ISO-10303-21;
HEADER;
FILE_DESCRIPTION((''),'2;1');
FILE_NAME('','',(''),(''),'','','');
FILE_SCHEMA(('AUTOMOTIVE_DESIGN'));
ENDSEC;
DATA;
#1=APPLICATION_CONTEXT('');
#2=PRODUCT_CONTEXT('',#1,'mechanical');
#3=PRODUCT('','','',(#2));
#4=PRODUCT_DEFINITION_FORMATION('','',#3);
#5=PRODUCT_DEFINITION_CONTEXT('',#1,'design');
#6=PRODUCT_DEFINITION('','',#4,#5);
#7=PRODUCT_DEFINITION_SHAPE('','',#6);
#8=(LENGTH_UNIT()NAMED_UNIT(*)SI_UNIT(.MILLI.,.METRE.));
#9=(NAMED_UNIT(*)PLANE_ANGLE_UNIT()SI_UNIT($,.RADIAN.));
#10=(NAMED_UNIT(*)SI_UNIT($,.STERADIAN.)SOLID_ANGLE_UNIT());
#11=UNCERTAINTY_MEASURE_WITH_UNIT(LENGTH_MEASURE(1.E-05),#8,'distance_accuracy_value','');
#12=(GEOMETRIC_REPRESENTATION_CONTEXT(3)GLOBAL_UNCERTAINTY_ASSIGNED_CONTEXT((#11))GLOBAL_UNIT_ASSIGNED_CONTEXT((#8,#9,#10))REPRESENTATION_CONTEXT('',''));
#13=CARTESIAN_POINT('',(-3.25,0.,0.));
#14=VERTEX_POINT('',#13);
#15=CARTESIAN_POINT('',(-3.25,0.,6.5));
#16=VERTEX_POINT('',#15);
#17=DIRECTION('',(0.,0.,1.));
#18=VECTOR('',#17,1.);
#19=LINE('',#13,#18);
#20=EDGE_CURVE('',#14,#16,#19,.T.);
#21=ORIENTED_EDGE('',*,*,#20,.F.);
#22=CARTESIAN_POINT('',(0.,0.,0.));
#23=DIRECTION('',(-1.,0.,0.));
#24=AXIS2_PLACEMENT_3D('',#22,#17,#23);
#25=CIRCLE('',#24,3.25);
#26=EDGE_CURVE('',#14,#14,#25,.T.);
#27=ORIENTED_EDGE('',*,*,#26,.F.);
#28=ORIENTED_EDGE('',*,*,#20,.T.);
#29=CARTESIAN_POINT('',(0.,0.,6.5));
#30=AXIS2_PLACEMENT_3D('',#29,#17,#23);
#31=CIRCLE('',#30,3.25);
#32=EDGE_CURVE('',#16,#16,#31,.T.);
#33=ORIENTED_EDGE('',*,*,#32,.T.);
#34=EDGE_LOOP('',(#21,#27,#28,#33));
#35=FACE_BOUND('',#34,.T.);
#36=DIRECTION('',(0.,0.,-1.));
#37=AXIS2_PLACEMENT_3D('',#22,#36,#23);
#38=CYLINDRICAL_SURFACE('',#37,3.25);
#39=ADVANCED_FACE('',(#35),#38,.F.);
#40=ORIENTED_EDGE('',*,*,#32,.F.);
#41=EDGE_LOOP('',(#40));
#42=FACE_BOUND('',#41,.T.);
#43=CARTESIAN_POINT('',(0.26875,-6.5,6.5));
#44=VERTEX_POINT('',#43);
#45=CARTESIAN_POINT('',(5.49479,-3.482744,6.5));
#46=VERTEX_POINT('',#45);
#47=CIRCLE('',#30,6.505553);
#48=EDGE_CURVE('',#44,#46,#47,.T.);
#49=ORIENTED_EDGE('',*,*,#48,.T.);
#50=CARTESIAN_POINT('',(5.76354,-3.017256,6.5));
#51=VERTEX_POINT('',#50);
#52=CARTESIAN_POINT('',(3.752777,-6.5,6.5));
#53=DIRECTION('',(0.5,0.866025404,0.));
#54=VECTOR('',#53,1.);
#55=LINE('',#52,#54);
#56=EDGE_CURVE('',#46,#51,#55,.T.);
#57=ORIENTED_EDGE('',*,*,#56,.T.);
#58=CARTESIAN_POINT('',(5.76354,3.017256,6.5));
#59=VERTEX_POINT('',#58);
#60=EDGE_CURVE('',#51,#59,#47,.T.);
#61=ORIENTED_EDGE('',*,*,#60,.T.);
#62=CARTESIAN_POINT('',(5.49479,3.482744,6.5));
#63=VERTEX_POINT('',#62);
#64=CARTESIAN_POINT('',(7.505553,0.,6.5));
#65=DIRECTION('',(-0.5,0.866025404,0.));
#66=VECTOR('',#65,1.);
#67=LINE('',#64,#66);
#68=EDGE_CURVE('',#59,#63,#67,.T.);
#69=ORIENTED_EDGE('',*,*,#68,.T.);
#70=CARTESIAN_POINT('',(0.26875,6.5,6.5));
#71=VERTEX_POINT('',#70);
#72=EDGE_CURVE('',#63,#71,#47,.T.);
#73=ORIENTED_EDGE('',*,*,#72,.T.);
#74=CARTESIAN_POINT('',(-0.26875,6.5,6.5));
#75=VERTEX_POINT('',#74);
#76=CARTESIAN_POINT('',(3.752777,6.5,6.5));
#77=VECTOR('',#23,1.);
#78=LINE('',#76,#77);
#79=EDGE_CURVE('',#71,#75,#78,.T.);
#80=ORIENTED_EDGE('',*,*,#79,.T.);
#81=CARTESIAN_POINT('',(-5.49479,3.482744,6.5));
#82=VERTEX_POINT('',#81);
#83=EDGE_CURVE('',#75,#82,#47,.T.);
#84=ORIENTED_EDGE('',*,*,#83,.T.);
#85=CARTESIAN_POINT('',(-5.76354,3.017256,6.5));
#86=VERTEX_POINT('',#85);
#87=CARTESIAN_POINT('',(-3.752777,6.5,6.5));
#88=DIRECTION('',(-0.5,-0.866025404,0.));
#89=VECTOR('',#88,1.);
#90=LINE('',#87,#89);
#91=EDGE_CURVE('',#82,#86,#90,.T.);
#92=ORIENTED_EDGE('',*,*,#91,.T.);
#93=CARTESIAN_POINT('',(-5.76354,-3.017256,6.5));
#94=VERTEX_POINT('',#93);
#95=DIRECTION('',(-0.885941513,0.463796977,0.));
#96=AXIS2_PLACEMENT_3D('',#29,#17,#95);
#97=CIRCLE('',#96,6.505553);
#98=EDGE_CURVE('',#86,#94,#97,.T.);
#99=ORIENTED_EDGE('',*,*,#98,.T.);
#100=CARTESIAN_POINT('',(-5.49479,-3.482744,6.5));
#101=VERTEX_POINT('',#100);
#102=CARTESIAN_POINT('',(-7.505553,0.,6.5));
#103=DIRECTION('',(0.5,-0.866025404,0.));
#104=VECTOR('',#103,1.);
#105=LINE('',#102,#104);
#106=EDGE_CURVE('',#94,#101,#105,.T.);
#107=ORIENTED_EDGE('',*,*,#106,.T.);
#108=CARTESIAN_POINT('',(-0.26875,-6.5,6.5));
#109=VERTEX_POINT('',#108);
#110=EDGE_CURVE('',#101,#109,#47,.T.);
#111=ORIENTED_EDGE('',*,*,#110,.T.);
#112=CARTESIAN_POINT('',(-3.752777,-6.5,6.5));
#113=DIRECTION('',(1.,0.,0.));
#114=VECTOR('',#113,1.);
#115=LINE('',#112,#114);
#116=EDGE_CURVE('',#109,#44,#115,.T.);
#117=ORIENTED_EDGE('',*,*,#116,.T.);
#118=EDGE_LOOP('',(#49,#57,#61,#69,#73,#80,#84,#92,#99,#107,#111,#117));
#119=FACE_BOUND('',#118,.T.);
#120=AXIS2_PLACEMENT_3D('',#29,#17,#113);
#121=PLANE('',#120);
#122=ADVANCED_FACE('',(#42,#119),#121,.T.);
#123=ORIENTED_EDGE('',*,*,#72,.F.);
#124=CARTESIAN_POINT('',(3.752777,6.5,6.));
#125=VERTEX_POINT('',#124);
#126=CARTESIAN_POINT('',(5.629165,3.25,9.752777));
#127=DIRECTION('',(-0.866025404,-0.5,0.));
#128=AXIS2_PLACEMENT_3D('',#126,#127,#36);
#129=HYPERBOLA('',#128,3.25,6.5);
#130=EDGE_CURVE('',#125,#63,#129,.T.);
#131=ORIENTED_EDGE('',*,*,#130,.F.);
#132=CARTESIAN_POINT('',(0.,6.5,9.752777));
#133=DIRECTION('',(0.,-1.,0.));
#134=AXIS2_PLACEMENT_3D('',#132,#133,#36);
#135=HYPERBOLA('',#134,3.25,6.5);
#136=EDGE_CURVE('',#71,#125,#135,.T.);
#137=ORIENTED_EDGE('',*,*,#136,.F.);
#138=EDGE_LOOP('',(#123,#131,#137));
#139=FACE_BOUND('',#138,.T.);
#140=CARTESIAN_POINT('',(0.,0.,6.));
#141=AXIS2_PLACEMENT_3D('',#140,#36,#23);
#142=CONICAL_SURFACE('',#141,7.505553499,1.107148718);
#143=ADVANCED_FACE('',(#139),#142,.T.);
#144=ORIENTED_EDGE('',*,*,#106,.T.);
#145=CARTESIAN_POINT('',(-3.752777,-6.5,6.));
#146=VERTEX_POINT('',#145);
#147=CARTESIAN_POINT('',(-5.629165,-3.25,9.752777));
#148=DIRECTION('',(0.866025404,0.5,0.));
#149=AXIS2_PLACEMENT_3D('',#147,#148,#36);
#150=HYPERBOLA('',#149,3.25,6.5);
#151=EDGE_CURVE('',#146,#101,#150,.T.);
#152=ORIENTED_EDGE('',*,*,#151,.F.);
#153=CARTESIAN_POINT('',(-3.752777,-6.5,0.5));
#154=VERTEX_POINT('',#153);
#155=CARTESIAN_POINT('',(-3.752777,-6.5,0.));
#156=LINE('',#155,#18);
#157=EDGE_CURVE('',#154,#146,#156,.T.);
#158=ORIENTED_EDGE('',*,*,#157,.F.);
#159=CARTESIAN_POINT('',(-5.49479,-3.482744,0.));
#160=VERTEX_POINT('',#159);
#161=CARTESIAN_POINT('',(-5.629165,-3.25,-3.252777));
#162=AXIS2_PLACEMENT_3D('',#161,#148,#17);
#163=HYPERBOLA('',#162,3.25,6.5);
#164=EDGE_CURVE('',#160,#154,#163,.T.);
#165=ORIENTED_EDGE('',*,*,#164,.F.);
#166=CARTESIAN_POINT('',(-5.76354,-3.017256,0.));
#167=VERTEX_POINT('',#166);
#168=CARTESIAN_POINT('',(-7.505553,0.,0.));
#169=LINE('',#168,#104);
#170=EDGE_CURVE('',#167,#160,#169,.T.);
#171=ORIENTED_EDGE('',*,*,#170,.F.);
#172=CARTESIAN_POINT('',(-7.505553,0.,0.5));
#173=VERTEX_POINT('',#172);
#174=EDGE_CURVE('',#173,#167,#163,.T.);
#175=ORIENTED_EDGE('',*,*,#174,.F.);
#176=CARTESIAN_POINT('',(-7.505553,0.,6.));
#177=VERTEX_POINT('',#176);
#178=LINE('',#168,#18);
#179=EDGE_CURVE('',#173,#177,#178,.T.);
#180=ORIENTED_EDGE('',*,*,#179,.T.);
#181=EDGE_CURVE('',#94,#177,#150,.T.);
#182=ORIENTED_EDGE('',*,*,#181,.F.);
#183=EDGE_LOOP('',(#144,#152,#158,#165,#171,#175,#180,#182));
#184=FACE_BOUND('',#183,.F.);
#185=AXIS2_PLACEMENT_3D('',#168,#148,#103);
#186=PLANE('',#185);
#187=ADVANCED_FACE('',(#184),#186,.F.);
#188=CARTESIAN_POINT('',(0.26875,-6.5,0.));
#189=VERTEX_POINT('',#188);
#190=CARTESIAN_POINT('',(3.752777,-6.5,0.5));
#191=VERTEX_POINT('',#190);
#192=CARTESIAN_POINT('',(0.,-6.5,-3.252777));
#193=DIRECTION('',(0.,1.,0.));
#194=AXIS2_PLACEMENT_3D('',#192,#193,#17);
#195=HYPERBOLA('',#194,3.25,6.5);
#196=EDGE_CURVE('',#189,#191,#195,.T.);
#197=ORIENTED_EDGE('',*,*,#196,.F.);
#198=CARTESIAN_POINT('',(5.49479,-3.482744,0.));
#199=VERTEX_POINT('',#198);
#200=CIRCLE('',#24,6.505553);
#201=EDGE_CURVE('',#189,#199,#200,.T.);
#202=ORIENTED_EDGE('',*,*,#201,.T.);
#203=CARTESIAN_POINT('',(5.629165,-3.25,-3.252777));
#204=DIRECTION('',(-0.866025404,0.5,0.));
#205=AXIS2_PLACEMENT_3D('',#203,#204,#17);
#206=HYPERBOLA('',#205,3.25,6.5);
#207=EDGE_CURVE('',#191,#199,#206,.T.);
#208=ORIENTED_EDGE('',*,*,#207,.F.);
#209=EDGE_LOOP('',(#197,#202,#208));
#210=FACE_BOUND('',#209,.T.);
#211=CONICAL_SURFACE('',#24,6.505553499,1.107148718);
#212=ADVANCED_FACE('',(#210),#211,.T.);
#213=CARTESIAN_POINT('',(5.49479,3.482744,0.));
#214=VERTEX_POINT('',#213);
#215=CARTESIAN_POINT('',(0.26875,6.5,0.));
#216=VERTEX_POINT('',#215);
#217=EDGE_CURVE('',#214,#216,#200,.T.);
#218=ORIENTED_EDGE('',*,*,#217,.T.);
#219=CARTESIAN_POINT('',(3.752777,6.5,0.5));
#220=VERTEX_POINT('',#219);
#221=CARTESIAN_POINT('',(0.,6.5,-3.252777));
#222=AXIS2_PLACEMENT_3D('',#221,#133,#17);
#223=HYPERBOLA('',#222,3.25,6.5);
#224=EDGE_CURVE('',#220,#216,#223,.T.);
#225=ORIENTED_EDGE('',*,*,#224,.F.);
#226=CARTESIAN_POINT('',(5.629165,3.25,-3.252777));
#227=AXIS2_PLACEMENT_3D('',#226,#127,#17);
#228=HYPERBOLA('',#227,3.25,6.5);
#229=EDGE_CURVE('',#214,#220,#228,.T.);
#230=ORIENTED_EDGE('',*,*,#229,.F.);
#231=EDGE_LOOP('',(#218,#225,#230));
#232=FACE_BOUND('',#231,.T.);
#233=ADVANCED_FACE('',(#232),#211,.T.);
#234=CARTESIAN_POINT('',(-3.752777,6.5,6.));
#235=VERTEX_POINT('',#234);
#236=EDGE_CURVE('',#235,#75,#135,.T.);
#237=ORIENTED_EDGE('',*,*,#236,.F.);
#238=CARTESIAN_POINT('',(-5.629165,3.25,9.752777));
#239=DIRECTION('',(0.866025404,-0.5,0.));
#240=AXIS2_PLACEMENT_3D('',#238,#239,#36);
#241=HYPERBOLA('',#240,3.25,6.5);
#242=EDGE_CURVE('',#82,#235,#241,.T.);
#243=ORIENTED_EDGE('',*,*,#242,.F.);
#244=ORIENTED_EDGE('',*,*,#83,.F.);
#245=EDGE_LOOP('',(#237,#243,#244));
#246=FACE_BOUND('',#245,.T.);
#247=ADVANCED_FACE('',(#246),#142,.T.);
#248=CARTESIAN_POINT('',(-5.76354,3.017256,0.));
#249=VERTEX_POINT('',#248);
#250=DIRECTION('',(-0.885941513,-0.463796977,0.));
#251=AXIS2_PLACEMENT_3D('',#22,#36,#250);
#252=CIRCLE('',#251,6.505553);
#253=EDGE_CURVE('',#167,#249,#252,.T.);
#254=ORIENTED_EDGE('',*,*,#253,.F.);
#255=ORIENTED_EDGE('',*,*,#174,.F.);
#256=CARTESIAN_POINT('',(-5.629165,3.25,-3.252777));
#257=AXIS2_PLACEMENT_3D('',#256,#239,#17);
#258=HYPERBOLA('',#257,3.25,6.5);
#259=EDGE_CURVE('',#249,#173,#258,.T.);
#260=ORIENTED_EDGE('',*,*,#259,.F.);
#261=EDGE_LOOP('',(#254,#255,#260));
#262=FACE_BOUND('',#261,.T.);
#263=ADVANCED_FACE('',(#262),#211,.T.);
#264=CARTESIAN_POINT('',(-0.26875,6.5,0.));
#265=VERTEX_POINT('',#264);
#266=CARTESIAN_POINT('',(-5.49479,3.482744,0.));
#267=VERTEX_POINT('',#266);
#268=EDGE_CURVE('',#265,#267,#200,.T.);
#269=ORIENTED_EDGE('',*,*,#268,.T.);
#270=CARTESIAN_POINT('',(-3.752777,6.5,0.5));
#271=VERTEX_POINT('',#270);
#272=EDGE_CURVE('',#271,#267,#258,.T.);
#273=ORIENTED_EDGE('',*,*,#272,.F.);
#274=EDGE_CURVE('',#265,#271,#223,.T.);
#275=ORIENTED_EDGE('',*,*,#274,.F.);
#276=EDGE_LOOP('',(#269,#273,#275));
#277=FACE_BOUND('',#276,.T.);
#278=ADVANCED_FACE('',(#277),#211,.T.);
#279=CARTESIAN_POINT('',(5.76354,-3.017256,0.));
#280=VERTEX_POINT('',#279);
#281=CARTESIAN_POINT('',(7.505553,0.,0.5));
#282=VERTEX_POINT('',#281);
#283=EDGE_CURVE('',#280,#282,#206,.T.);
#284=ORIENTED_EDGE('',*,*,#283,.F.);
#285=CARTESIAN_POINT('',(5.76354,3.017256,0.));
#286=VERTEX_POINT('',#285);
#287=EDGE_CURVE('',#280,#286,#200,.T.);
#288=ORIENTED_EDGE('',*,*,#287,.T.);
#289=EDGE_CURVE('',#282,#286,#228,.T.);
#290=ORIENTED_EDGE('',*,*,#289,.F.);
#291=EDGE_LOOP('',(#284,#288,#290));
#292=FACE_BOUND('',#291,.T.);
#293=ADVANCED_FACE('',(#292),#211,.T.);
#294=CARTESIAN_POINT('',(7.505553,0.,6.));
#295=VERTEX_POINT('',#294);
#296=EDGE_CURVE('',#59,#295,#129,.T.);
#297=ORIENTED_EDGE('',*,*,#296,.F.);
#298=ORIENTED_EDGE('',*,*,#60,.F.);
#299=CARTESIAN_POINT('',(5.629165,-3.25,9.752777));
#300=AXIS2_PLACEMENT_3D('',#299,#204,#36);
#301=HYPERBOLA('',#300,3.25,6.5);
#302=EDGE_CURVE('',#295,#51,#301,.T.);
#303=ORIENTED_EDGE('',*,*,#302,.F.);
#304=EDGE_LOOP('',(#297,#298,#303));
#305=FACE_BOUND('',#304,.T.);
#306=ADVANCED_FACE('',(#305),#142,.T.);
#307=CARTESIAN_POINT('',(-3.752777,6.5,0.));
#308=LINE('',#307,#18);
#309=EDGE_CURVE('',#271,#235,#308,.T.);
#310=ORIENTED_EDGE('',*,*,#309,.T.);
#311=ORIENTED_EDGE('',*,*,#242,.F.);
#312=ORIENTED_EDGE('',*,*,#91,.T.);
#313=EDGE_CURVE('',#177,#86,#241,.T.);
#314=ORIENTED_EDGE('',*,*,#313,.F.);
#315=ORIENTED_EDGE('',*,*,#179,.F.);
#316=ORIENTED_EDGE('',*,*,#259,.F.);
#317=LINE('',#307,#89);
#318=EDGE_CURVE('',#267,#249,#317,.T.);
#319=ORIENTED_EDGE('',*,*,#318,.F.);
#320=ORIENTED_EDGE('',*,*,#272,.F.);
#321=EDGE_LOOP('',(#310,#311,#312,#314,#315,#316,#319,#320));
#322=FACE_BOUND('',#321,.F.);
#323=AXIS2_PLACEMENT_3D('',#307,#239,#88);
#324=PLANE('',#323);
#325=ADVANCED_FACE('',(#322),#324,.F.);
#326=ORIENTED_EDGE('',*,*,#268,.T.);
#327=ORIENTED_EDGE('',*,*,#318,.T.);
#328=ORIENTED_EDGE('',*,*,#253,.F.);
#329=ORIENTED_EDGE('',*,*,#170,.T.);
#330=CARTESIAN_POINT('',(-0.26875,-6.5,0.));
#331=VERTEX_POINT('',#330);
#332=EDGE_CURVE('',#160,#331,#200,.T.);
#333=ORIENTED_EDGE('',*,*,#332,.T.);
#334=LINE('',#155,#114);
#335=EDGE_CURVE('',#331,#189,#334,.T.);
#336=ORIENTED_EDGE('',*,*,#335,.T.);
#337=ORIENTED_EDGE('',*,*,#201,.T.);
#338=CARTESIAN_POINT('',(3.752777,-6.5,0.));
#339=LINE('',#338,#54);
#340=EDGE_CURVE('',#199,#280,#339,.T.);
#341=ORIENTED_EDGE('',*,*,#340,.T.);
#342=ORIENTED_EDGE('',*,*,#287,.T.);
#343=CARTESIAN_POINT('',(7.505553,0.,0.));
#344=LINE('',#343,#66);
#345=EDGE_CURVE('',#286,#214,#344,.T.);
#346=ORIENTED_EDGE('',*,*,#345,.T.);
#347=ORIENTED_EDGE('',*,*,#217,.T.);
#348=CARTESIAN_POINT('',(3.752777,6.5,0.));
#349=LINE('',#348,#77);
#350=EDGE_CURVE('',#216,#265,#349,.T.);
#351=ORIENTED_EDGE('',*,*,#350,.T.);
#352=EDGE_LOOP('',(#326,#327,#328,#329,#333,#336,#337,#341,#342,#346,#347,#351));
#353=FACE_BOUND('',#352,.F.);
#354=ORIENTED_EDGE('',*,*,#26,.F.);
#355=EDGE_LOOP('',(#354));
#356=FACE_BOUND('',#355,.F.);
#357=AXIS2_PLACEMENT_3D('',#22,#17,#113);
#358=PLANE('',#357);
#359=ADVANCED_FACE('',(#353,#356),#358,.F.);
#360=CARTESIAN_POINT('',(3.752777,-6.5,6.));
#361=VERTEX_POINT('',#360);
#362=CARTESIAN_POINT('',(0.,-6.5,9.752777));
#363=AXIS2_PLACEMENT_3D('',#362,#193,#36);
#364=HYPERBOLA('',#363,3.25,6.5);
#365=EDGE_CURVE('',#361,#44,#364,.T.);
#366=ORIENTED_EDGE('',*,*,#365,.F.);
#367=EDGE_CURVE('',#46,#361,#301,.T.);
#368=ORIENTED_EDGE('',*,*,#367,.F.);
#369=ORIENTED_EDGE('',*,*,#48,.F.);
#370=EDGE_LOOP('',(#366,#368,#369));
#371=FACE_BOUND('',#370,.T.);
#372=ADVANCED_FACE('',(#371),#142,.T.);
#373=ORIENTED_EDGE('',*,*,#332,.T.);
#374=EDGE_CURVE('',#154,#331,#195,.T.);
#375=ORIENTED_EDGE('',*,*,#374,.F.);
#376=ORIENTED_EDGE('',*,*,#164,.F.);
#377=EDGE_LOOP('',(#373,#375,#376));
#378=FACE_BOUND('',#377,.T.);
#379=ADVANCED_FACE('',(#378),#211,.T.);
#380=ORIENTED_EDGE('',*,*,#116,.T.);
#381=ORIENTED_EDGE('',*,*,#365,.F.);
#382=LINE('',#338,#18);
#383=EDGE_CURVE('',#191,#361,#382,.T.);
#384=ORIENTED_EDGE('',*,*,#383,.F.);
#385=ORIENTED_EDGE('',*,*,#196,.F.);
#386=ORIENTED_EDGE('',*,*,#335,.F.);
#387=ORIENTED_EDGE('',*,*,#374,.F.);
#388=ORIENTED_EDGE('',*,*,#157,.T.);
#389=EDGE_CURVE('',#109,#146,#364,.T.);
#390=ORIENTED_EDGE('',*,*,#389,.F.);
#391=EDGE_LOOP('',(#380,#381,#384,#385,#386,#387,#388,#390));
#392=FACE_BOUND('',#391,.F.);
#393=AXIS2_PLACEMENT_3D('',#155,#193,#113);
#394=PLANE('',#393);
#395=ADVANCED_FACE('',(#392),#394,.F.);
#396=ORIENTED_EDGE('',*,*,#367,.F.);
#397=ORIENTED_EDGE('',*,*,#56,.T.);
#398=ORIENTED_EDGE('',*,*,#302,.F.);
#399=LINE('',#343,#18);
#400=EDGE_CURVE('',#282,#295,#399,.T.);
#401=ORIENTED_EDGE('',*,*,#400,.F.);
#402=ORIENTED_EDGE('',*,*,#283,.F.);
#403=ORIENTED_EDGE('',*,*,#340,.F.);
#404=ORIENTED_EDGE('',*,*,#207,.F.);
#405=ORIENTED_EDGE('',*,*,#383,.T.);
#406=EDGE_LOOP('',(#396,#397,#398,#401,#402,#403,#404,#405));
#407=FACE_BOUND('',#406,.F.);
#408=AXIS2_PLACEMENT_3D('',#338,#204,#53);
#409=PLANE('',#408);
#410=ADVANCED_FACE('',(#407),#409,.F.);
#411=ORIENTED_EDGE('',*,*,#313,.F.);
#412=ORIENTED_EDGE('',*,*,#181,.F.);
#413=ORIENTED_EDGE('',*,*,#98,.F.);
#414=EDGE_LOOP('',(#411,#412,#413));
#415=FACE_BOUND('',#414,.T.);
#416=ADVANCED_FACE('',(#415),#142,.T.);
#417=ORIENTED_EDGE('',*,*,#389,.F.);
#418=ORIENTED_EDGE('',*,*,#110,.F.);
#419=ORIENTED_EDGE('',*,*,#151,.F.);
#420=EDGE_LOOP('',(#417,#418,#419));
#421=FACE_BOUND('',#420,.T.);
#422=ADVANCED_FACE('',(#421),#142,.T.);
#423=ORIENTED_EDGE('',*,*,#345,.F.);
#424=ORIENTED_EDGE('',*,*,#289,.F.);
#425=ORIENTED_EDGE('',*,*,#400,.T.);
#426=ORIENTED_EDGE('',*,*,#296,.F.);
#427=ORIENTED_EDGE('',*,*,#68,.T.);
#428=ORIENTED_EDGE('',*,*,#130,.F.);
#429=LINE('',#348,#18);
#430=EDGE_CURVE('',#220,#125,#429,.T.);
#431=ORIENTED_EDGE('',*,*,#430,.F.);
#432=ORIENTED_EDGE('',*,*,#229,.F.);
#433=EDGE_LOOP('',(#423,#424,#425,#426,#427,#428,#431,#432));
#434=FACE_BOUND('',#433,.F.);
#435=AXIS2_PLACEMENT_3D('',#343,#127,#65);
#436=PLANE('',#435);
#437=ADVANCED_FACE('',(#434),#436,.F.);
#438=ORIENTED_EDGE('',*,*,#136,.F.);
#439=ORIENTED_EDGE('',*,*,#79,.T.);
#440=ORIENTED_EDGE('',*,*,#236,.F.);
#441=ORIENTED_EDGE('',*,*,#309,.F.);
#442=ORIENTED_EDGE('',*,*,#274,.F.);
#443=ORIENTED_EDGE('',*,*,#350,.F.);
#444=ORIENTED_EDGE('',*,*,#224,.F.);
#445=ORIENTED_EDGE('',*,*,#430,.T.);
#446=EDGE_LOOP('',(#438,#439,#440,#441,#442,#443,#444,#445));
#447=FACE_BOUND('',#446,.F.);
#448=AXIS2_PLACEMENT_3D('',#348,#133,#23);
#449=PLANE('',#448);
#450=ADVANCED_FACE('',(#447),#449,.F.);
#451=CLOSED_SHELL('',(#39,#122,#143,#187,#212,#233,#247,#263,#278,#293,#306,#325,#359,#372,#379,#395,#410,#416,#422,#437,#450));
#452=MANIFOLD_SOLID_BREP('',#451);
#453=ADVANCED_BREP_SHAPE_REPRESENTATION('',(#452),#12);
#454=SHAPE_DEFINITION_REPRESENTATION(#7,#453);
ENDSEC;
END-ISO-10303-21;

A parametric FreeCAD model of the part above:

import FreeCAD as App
import Part
import Sketcher
Q = App.Units.Quantity

doc = App.newDocument("Part")
params = doc.addObject("Spreadsheet::Sheet", "Params")
for row, (alias, value) in enumerate([
    ("sketch1_diameter", "6.5 mm"),
    ("pad1_length", "6.5 mm"),
    ("sketch2_width", "1 mm"),
    ("sketch2_height", "0.5 mm"),
    ("groove_angle", "360 deg"),
], start=1):
    params.set(f"A{row}", alias)
    params.set(f"B{row}", "=" + value)
    params.setAlias(f"B{row}", alias)

body = doc.addObject("PartDesign::Body", "Body")

# Sketch on XY plane
sketch1 = body.newObject("Sketcher::SketchObject", "Sketch")
sketch1.AttachmentSupport = (doc.getObject("XY_Plane"), [""])
sketch1.MapMode = "FlatFace"
sketch1.addGeometry([
    Part.LineSegment(App.Vector(7.5, 0, 0), App.Vector(3.8, 6.5, 0)),  # 0
    Part.LineSegment(App.Vector(3.8, 6.5, 0), App.Vector(-3.8, 6.5, 0)),  # 1
    Part.LineSegment(App.Vector(-3.8, 6.5, 0), App.Vector(-7.5, 0, 0)),  # 2
    Part.LineSegment(App.Vector(-7.5, 0, 0), App.Vector(-3.8, -6.5, 0)),  # 3
    Part.LineSegment(App.Vector(-3.8, -6.5, 0), App.Vector(3.8, -6.5, 0)),  # 4
    Part.LineSegment(App.Vector(3.8, -6.5, 0), App.Vector(7.5, 0, 0)),  # 5
    Part.Circle(App.Vector(0, 0, 0), App.Vector(0, 0, 1), 3.2),  # 6
], False)
sketch1.addConstraint([
    Sketcher.Constraint("Coincident", 0, 2, 1, 1),
    Sketcher.Constraint("Coincident", 1, 2, 2, 1),
    Sketcher.Constraint("Coincident", 2, 2, 3, 1),
    Sketcher.Constraint("Coincident", 3, 2, 4, 1),
    Sketcher.Constraint("Coincident", 4, 2, 5, 1),
    Sketcher.Constraint("Coincident", 5, 2, 0, 1),
    Sketcher.Constraint("Horizontal", 1),
    Sketcher.Constraint("Horizontal", 4),
    Sketcher.Constraint("Coincident", 6, 3, -1, 1),
    Sketcher.Constraint("Symmetric", 0, 2, 3, 2, -1, 1),
    Sketcher.Constraint("Symmetric", 2, 2, 5, 2, -1, 1),
    Sketcher.Constraint("PointOnObject", 2, 2, -1),
    Sketcher.Constraint("Parallel", 2, 5),
    Sketcher.Constraint("Vertical", 1, 2, 3, 2),
    Sketcher.Constraint("Diameter", 6, Q("6.5 mm")),
    Sketcher.Constraint("Angle", 0, Q("120 deg")),
    Sketcher.Constraint("DistanceY", 3, 2, 1, 2, Q("13 mm")),
    Sketcher.Constraint("DistanceX", 1, 2, 1, 1, Q("7.505554 mm")),
])
sketch1.setExpression("Constraints[14]", "Params.sketch1_diameter")
pad1 = body.newObject("PartDesign::Pad", "Pad")
pad1.Profile = sketch1
pad1.setExpression("Length", "Params.pad1_length")

# Sketch on XZ plane
sketch2 = body.newObject("Sketcher::SketchObject", "Sketch001")
sketch2.AttachmentSupport = (doc.getObject("XZ_Plane"), [""])
sketch2.MapMode = "FlatFace"
sketch2.addGeometry([
    Part.LineSegment(App.Vector(-6.5, 0, 0), App.Vector(-7.5, 0, 0)),  # 0
    Part.LineSegment(App.Vector(-7.5, 0, 0), App.Vector(-7.5, 0.5, 0)),  # 1
    Part.LineSegment(App.Vector(-7.5, 0.5, 0), App.Vector(-6.5, 0, 0)),  # 2
    Part.LineSegment(App.Vector(-7.5, 6, 0), App.Vector(-7.5, 6.5, 0)),  # 3
    Part.LineSegment(App.Vector(-7.5, 6.5, 0), App.Vector(-6.5, 6.5, 0)),  # 4
    Part.LineSegment(App.Vector(-6.5, 6.5, 0), App.Vector(-7.5, 6, 0)),  # 5
], False)
sketch2.addConstraint([
    Sketcher.Constraint("Coincident", 0, 2, 1, 1),
    Sketcher.Constraint("Coincident", 1, 2, 2, 1),
    Sketcher.Constraint("Coincident", 2, 2, 0, 1),
    Sketcher.Constraint("Coincident", 3, 2, 4, 1),
    Sketcher.Constraint("Coincident", 4, 2, 5, 1),
    Sketcher.Constraint("Coincident", 5, 2, 3, 1),
    Sketcher.Constraint("Horizontal", 0),
    Sketcher.Constraint("Vertical", 1),
    Sketcher.Constraint("Vertical", 3),
    Sketcher.Constraint("Horizontal", 4),
    Sketcher.Constraint("PointOnObject", 0, 2, -1),
    Sketcher.Constraint("Vertical", 1, 2, 3, 2),
    Sketcher.Constraint("Vertical", 2, 2, 4, 2),
    Sketcher.Constraint("Equal", 1, 3),
    Sketcher.Constraint("DistanceX", 0, 2, 0, 1, Q("1 mm")),
    Sketcher.Constraint("DistanceY", 1, 1, 1, 2, Q("0.5 mm")),
    Sketcher.Constraint("DistanceY", -1, 1, 5, 2, Q("6 mm")),
    Sketcher.Constraint("DistanceX", 0, 2, -1, 1, Q("7.505553 mm")),
])
sketch2.setExpression("Constraints[14]", "Params.sketch2_width")
sketch2.setExpression("Constraints[15]", "Params.sketch2_height")
groove = body.newObject("PartDesign::Groove", "Groove")
groove.Profile = sketch2
groove.ReferenceAxis = (sketch2, ["V_Axis"])
groove.setExpression("Angle", "Params.groove_angle")

doc.recompute()
